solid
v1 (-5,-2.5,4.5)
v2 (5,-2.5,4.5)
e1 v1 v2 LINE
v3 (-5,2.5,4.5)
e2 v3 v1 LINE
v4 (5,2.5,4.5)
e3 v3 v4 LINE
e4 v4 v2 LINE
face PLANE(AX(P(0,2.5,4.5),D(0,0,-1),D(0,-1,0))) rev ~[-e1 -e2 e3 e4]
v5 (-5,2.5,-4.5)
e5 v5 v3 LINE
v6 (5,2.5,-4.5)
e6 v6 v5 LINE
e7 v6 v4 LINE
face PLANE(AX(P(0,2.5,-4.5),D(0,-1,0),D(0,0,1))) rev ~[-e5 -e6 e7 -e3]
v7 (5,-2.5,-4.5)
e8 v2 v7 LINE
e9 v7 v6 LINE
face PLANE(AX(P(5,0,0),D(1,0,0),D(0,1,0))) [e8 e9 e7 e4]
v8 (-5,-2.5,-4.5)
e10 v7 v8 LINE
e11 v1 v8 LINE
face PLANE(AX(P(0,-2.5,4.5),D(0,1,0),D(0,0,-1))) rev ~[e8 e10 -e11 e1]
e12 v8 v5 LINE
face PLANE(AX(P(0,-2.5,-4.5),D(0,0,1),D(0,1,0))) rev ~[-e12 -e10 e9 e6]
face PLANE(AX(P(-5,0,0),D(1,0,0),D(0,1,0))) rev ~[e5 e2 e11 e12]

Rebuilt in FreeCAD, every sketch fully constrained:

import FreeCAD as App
import Part
import Sketcher

V = App.Vector
Q = App.Units.Quantity


def add_polygon(sketch, points):
    """Adds a closed chain of lines whose ends are joined by coincident constraints."""
    first, n = sketch.GeometryCount, len(points)
    for a, b in zip(points, points[1:] + points[:1]):
        sketch.addGeometry(Part.LineSegment(App.Vector(*a, 0), App.Vector(*b, 0)), False)
    for i in range(n):
        sketch.addConstraint(Sketcher.Constraint("Coincident", first + i, 2, first + (i + 1) % n, 1))

doc = App.newDocument("Part")
params = doc.addObject("Spreadsheet::Sheet", "Params")
for row, (alias, value) in enumerate([
    ("sketch1_width", "5 mm"),
    ("sketch1_height", "9 mm"),
    ("pad1_length", "10 mm"),
], start=1):
    params.set(f"A{row}", alias)
    params.set(f"B{row}", "=" + value)
    params.setAlias(f"B{row}", alias)

body = doc.addObject("PartDesign::Body", "Body")

# Sketch on YZ plane
sketch1 = body.newObject("Sketcher::SketchObject", "Sketch")
sketch1.AttachmentSupport = (doc.getObject("YZ_Plane"), [""])
sketch1.MapMode = "FlatFace"
add_polygon(sketch1, [(2, -4), (2, 4), (-2, 4), (-2, -4)])  # lines 0-3
sketch1.addConstraint([
    Sketcher.Constraint("Vertical", 0),
    Sketcher.Constraint("Horizontal", 1),
    Sketcher.Constraint("Vertical", 2),
    Sketcher.Constraint("Horizontal", 3),
    Sketcher.Constraint("Symmetric", 0, 2, 2, 2, -1, 1),
    Sketcher.Constraint("DistanceX", 1, 2, 1, 1, Q("5 mm")),
    Sketcher.Constraint("DistanceY", 0, 1, 0, 2, Q("9 mm")),
])
sketch1.setExpression("Constraints[9]", "Params.sketch1_width")
sketch1.setExpression("Constraints[10]", "Params.sketch1_height")
pad1 = body.newObject("PartDesign::Pad", "Pad")
pad1.Profile = sketch1
pad1.setExpression("Length", "Params.pad1_length")
pad1.Midplane = True

doc.recompute()
